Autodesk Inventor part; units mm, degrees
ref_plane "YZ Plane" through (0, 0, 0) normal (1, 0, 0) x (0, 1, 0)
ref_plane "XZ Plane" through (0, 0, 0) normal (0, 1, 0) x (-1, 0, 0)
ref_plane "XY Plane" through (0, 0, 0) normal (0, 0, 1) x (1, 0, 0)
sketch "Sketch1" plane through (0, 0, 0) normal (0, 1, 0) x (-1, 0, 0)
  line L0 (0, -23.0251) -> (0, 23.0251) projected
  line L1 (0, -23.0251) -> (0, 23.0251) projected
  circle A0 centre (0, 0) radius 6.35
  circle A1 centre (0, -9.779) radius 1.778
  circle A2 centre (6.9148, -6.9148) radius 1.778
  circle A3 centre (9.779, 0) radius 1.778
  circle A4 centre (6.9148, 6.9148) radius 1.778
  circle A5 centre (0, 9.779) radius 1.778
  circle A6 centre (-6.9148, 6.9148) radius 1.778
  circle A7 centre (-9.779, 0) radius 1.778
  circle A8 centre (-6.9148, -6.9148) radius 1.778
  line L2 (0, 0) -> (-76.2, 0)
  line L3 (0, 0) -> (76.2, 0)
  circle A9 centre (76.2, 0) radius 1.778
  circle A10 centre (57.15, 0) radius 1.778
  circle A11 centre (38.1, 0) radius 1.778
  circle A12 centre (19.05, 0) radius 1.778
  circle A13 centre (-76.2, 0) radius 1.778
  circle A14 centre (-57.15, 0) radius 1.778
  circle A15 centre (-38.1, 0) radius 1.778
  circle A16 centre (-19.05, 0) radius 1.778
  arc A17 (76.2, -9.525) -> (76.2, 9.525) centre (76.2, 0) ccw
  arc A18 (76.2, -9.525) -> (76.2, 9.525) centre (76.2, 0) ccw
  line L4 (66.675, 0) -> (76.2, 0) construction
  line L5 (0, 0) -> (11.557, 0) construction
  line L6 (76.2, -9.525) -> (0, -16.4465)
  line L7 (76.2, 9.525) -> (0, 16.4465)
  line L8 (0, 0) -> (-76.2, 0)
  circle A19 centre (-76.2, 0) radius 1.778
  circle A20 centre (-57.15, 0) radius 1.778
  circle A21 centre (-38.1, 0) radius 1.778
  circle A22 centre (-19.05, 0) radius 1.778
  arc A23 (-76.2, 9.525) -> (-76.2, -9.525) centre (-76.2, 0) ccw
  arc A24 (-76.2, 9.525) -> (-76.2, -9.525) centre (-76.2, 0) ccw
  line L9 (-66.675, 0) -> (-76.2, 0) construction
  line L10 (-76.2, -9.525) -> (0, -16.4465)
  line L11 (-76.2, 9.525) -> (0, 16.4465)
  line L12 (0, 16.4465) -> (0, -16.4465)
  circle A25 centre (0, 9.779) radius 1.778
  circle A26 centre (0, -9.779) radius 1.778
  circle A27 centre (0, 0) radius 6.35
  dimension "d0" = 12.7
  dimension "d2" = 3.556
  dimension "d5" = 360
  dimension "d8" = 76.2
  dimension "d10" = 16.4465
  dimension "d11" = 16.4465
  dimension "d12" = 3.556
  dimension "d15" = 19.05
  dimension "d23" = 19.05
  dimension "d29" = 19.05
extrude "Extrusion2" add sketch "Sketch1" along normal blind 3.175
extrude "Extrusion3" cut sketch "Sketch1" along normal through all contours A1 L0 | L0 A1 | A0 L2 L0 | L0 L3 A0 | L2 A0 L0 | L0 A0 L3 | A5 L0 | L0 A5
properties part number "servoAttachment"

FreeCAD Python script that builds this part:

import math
import FreeCAD as App
import Part
import Sketcher
Q = App.Units.Quantity

doc = App.newDocument("Part")
params = doc.addObject("Spreadsheet::Sheet", "Params")
for row, (alias, value) in enumerate([
    ("sketch1_diameter", "0.14 in"),
    ("sketch1_radius", "0.375 in"),
    ("pad1_length", "0.125 in"),
    ("sketch2_diameter", "0.5 in"),
    ("sketch2_diameter2", "0.14 in"),
], start=1):
    params.set(f"A{row}", alias)
    params.set(f"B{row}", "=" + value)
    params.setAlias(f"B{row}", alias)

body = doc.addObject("PartDesign::Body", "Body")

sketch1 = body.newObject("Sketcher::SketchObject", "Sketch")
sketch1.AttachmentSupport = (doc.getObject("XZ_Plane"), [""])
sketch1.MapMode = "FlatFace"
sketch1.addGeometry(Part.LineSegment(App.Vector(76.2, -9.5, 0), App.Vector(0, -16.4, 0)), False)
sketch1.addGeometry(Part.LineSegment(App.Vector(0, -16.4, 0), App.Vector(-76.2, -9.5, 0)), False)
sketch1.addGeometry(Part.ArcOfCircle(Part.Circle(App.Vector(-76.2, 0, 0), App.Vector(0, 0, 1), 9.5), math.radians(90), math.radians(270)), False)
sketch1.addGeometry(Part.LineSegment(App.Vector(-76.2, 9.5, 0), App.Vector(0, 16.4, 0)), False)
sketch1.addGeometry(Part.LineSegment(App.Vector(0, 16.4, 0), App.Vector(76.2, 9.5, 0)), False)
sketch1.addGeometry(Part.ArcOfCircle(Part.Circle(App.Vector(76.2, 0, 0), App.Vector(0, 0, 1), 9.5), math.radians(-90), math.radians(90)), False)
sketch1.addGeometry(Part.Circle(App.Vector(6.9, -6.9, 0), App.Vector(0, 0, 1), 1.8), False)
sketch1.addGeometry(Part.Circle(App.Vector(76.2, 0, 0), App.Vector(0, 0, 1), 1.8), False)
sketch1.addGeometry(Part.ArcOfCircle(Part.Circle(App.Vector(57.1, 0, 0), App.Vector(0, 0, 1), 1.8), math.radians(0), math.radians(180)), False)
sketch1.addGeometry(Part.ArcOfCircle(Part.Circle(App.Vector(57.1, 0, 0), App.Vector(0, 0, 1), 1.8), math.radians(180), math.radians(360)), False)
sketch1.addGeometry(Part.ArcOfCircle(Part.Circle(App.Vector(38.1, 0, 0), App.Vector(0, 0, 1), 1.8), math.radians(0), math.radians(180)), False)
sketch1.addGeometry(Part.ArcOfCircle(Part.Circle(App.Vector(38.1, 0, 0), App.Vector(0, 0, 1), 1.8), math.radians(180), math.radians(360)), False)
sketch1.addGeometry(Part.ArcOfCircle(Part.Circle(App.Vector(19.1, 0, 0), App.Vector(0, 0, 1), 1.8), math.radians(0), math.radians(180)), False)
sketch1.addGeometry(Part.ArcOfCircle(Part.Circle(App.Vector(19.1, 0, 0), App.Vector(0, 0, 1), 1.8), math.radians(180), math.radians(360)), False)
sketch1.addGeometry(Part.ArcOfCircle(Part.Circle(App.Vector(9.8, 0, 0), App.Vector(0, 0, 1), 1.8), math.radians(0), math.radians(180)), False)
sketch1.addGeometry(Part.ArcOfCircle(Part.Circle(App.Vector(9.8, 0, 0), App.Vector(0, 0, 1), 1.8), math.radians(180), math.radians(360)), False)
sketch1.addGeometry(Part.Circle(App.Vector(6.9, 6.9, 0), App.Vector(0, 0, 1), 1.8), False)
sketch1.addGeometry(Part.Circle(App.Vector(-6.9, -6.9, 0), App.Vector(0, 0, 1), 1.8), False)
sketch1.addGeometry(Part.ArcOfCircle(Part.Circle(App.Vector(-9.8, 0, 0), App.Vector(0, 0, 1), 1.8), math.radians(180), math.radians(360)), False)
sketch1.addGeometry(Part.ArcOfCircle(Part.Circle(App.Vector(-9.8, 0, 0), App.Vector(0, 0, 1), 1.8), math.radians(0), math.radians(180)), False)
sketch1.addGeometry(Part.ArcOfCircle(Part.Circle(App.Vector(-19.1, 0, 0), App.Vector(0, 0, 1), 1.8), math.radians(180), math.radians(360)), False)
sketch1.addGeometry(Part.ArcOfCircle(Part.Circle(App.Vector(-19.1, 0, 0), App.Vector(0, 0, 1), 1.8), math.radians(0), math.radians(180)), False)
sketch1.addGeometry(Part.ArcOfCircle(Part.Circle(App.Vector(-38.1, 0, 0), App.Vector(0, 0, 1), 1.8), math.radians(180), math.radians(360)), False)
sketch1.addGeometry(Part.ArcOfCircle(Part.Circle(App.Vector(-38.1, 0, 0), App.Vector(0, 0, 1), 1.8), math.radians(0), math.radians(180)), False)
sketch1.addGeometry(Part.Circle(App.Vector(-6.9, 6.9, 0), App.Vector(0, 0, 1), 1.8), False)
sketch1.addGeometry(Part.ArcOfCircle(Part.Circle(App.Vector(-57.1, 0, 0), App.Vector(0, 0, 1), 1.8), math.radians(180), math.radians(360)), False)
sketch1.addGeometry(Part.ArcOfCircle(Part.Circle(App.Vector(-57.1, 0, 0), App.Vector(0, 0, 1), 1.8), math.radians(0), math.radians(180)), False)
sketch1.addGeometry(Part.Circle(App.Vector(-76.2, 0, 0), App.Vector(0, 0, 1), 1.8), False)
sketch1.addConstraint(Sketcher.Constraint("Coincident", 0, 2, 1, 1))
sketch1.addConstraint(Sketcher.Constraint("Coincident", 1, 2, 2, 2))
sketch1.addConstraint(Sketcher.Constraint("Coincident", 2, 1, 3, 1))
sketch1.addConstraint(Sketcher.Constraint("Coincident", 3, 2, 4, 1))
sketch1.addConstraint(Sketcher.Constraint("Coincident", 4, 2, 5, 2))
sketch1.addConstraint(Sketcher.Constraint("Coincident", 5, 1, 0, 1))
sketch1.addConstraint(Sketcher.Constraint("Tangent", 8, 1, 9, 2))
sketch1.addConstraint(Sketcher.Constraint("Coincident", 9, 1, 8, 2))
sketch1.addConstraint(Sketcher.Constraint("Tangent", 10, 1, 11, 2))
sketch1.addConstraint(Sketcher.Constraint("Coincident", 11, 1, 10, 2))
sketch1.addConstraint(Sketcher.Constraint("Tangent", 12, 1, 13, 2))
sketch1.addConstraint(Sketcher.Constraint("Coincident", 13, 1, 12, 2))
sketch1.addConstraint(Sketcher.Constraint("Tangent", 14, 1, 15, 2))
sketch1.addConstraint(Sketcher.Constraint("Coincident", 15, 1, 14, 2))
sketch1.addConstraint(Sketcher.Constraint("Tangent", 18, 1, 19, 2))
sketch1.addConstraint(Sketcher.Constraint("Coincident", 19, 1, 18, 2))
sketch1.addConstraint(Sketcher.Constraint("Tangent", 20, 1, 21, 2))
sketch1.addConstraint(Sketcher.Constraint("Coincident", 21, 1, 20, 2))
sketch1.addConstraint(Sketcher.Constraint("Tangent", 22, 1, 23, 2))
sketch1.addConstraint(Sketcher.Constraint("Coincident", 23, 1, 22, 2))
sketch1.addConstraint(Sketcher.Constraint("Tangent", 25, 1, 26, 2))
sketch1.addConstraint(Sketcher.Constraint("Coincident", 26, 1, 25, 2))
sketch1.addConstraint(Sketcher.Constraint("Coincident", 7, 3, 5, 3))
sketch1.addConstraint(Sketcher.Constraint("Coincident", 27, 3, 2, 3))
sketch1.addConstraint(Sketcher.Constraint("Equal", 2, 5))
sketch1.addConstraint(Sketcher.Constraint("Equal", 6, 7))
sketch1.addConstraint(Sketcher.Constraint("Equal", 7, 8))
sketch1.addConstraint(Sketcher.Constraint("Equal", 9, 10))
sketch1.addConstraint(Sketcher.Constraint("Equal", 11, 12))
sketch1.addConstraint(Sketcher.Constraint("Equal", 13, 14))
sketch1.addConstraint(Sketcher.Constraint("Equal", 15, 16))
sketch1.addConstraint(Sketcher.Constraint("Equal", 16, 17))
sketch1.addConstraint(Sketcher.Constraint("Equal", 17, 18))
sketch1.addConstraint(Sketcher.Constraint("Equal", 19, 20))
sketch1.addConstraint(Sketcher.Constraint("Equal", 21, 22))
sketch1.addConstraint(Sketcher.Constraint("Equal", 23, 24))
sketch1.addConstraint(Sketcher.Constraint("Equal", 24, 25))
sketch1.addConstraint(Sketcher.Constraint("Equal", 26, 27))
sketch1.addConstraint(Sketcher.Constraint("Symmetric", 2, 3, 5, 3, -1, 1))
sketch1.addConstraint(Sketcher.Constraint("Symmetric", 16, 3, 17, 3, -1, 1))
sketch1.addConstraint(Sketcher.Constraint("Symmetric", 14, 3, 18, 3, -1, 1))
sketch1.addConstraint(Sketcher.Constraint("Symmetric", 12, 3, 20, 3, -1, 1))
sketch1.addConstraint(Sketcher.Constraint("Symmetric", 10, 3, 22, 3, -1, 1))
sketch1.addConstraint(Sketcher.Constraint("Symmetric", 6, 3, 24, 3, -1, 1))
sketch1.addConstraint(Sketcher.Constraint("Symmetric", 8, 3, 25, 3, -1, 1))
sketch1.addConstraint(Sketcher.Constraint("Symmetric", 0, 2, 3, 2, -1, 1))
sketch1.addConstraint(Sketcher.Constraint("Symmetric", 6, 3, 17, 3, -2))
sketch1.addConstraint(Sketcher.Constraint("Symmetric", 2, 1, 4, 2, -2))
sketch1.addConstraint(Sketcher.Constraint("PointOnObject", 8, 3, -1))
sketch1.addConstraint(Sketcher.Constraint("PointOnObject", 10, 3, -1))
sketch1.addConstraint(Sketcher.Constraint("PointOnObject", 12, 3, -1))
sketch1.addConstraint(Sketcher.Constraint("PointOnObject", 14, 3, -1))
sketch1.addConstraint(Sketcher.Constraint("PointOnObject", 0, 2, -2))
sketch1.addConstraint(Sketcher.Constraint("PointOnObject", 8, 1, -1))
sketch1.addConstraint(Sketcher.Constraint("PointOnObject", 9, 1, -1))
sketch1.addConstraint(Sketcher.Constraint("PointOnObject", 10, 1, -1))
sketch1.addConstraint(Sketcher.Constraint("PointOnObject", 11, 1, -1))
sketch1.addConstraint(Sketcher.Constraint("PointOnObject", 12, 1, -1))
sketch1.addConstraint(Sketcher.Constraint("PointOnObject", 13, 1, -1))
sketch1.addConstraint(Sketcher.Constraint("PointOnObject", 14, 1, -1))
sketch1.addConstraint(Sketcher.Constraint("PointOnObject", 15, 1, -1))
sketch1.addConstraint(Sketcher.Constraint("PointOnObject", 18, 1, -1))
sketch1.addConstraint(Sketcher.Constraint("PointOnObject", 19, 1, -1))
sketch1.addConstraint(Sketcher.Constraint("PointOnObject", 20, 1, -1))
sketch1.addConstraint(Sketcher.Constraint("PointOnObject", 21, 1, -1))
sketch1.addConstraint(Sketcher.Constraint("PointOnObject", 22, 1, -1))
sketch1.addConstraint(Sketcher.Constraint("PointOnObject", 23, 1, -1))
sketch1.addConstraint(Sketcher.Constraint("PointOnObject", 25, 1, -1))
sketch1.addConstraint(Sketcher.Constraint("PointOnObject", 26, 1, -1))
sketch1.addConstraint(Sketcher.Constraint("Parallel", 0, 3))
sketch1.addConstraint(Sketcher.Constraint("Parallel", 1, 4))
sketch1.addConstraint(Sketcher.Constraint("Vertical", 27, 3, 1, 2))
sketch1.addConstraint(Sketcher.Constraint("Diameter", 6, Q("0.14 in")))
sketch1.addConstraint(Sketcher.Constraint("DistanceX", 2, 3, -1, 1, Q("3 in")))
sketch1.addConstraint(Sketcher.Constraint("Radius", 2, Q("0.375 in")))
sketch1.addConstraint(Sketcher.Constraint("DistanceX", -1, 1, 12, 3, Q("0.75 in")))
sketch1.addConstraint(Sketcher.Constraint("DistanceX", 8, 3, 5, 3, Q("0.75 in")))
sketch1.addConstraint(Sketcher.Constraint("DistanceX", 10, 3, 8, 3, Q("0.75 in")))
sketch1.addConstraint(Sketcher.Constraint("DistanceY", 0, 2, -1, 1, Q("0.6475 in")))
sketch1.addConstraint(Sketcher.Constraint("DistanceX", 18, 3, 14, 3, Q("0.77 in")))
sketch1.addConstraint(Sketcher.Constraint("DistanceX", -1, 1, 6, 3, 6.9148))
sketch1.addConstraint(Sketcher.Constraint("DistanceY", 6, 3, -1, 1, 6.9148))
sketch1.setExpression("Constraints[72]", "Params.sketch1_diameter")
sketch1.setExpression("Constraints[74]", "Params.sketch1_radius")
pad1 = body.newObject("PartDesign::Pad", "Pad")
pad1.Profile = sketch1
pad1.setExpression("Length", "Params.pad1_length")
pad1.Reversed = True

sketch2 = body.newObject("Sketcher::SketchObject", "Sketch001")
sketch2.AttachmentSupport = (doc.getObject("XZ_Plane"), [""])
sketch2.MapMode = "FlatFace"
sketch2.addGeometry(Part.Circle(App.Vector(0, -9.8, 0), App.Vector(0, 0, 1), 1.8), False)
sketch2.addGeometry(Part.Circle(App.Vector(0, 0, 0), App.Vector(0, 0, 1), 6.3), False)
sketch2.addGeometry(Part.Circle(App.Vector(0, 9.8, 0), App.Vector(0, 0, 1), 1.8), False)
sketch2.addConstraint(Sketcher.Constraint("Coincident", 1, 3, -1, 1))
sketch2.addConstraint(Sketcher.Constraint("Equal", 0, 2))
sketch2.addConstraint(Sketcher.Constraint("Symmetric", 0, 3, 2, 3, -1, 1))
sketch2.addConstraint(Sketcher.Constraint("PointOnObject", 0, 3, -2))
sketch2.addConstraint(Sketcher.Constraint("Diameter", 1, Q("0.5 in")))
sketch2.addConstraint(Sketcher.Constraint("Diameter", 0, Q("0.14 in")))
sketch2.addConstraint(Sketcher.Constraint("DistanceY", 0, 3, 2, 3, Q("0.77 in")))
sketch2.setExpression("Constraints[4]", "Params.sketch2_diameter")
sketch2.setExpression("Constraints[5]", "Params.sketch2_diameter2")
pocket1 = body.newObject("PartDesign::Pocket", "Pocket")
pocket1.Profile = sketch2
pocket1.Type = "ThroughAll"

doc.recompute()
